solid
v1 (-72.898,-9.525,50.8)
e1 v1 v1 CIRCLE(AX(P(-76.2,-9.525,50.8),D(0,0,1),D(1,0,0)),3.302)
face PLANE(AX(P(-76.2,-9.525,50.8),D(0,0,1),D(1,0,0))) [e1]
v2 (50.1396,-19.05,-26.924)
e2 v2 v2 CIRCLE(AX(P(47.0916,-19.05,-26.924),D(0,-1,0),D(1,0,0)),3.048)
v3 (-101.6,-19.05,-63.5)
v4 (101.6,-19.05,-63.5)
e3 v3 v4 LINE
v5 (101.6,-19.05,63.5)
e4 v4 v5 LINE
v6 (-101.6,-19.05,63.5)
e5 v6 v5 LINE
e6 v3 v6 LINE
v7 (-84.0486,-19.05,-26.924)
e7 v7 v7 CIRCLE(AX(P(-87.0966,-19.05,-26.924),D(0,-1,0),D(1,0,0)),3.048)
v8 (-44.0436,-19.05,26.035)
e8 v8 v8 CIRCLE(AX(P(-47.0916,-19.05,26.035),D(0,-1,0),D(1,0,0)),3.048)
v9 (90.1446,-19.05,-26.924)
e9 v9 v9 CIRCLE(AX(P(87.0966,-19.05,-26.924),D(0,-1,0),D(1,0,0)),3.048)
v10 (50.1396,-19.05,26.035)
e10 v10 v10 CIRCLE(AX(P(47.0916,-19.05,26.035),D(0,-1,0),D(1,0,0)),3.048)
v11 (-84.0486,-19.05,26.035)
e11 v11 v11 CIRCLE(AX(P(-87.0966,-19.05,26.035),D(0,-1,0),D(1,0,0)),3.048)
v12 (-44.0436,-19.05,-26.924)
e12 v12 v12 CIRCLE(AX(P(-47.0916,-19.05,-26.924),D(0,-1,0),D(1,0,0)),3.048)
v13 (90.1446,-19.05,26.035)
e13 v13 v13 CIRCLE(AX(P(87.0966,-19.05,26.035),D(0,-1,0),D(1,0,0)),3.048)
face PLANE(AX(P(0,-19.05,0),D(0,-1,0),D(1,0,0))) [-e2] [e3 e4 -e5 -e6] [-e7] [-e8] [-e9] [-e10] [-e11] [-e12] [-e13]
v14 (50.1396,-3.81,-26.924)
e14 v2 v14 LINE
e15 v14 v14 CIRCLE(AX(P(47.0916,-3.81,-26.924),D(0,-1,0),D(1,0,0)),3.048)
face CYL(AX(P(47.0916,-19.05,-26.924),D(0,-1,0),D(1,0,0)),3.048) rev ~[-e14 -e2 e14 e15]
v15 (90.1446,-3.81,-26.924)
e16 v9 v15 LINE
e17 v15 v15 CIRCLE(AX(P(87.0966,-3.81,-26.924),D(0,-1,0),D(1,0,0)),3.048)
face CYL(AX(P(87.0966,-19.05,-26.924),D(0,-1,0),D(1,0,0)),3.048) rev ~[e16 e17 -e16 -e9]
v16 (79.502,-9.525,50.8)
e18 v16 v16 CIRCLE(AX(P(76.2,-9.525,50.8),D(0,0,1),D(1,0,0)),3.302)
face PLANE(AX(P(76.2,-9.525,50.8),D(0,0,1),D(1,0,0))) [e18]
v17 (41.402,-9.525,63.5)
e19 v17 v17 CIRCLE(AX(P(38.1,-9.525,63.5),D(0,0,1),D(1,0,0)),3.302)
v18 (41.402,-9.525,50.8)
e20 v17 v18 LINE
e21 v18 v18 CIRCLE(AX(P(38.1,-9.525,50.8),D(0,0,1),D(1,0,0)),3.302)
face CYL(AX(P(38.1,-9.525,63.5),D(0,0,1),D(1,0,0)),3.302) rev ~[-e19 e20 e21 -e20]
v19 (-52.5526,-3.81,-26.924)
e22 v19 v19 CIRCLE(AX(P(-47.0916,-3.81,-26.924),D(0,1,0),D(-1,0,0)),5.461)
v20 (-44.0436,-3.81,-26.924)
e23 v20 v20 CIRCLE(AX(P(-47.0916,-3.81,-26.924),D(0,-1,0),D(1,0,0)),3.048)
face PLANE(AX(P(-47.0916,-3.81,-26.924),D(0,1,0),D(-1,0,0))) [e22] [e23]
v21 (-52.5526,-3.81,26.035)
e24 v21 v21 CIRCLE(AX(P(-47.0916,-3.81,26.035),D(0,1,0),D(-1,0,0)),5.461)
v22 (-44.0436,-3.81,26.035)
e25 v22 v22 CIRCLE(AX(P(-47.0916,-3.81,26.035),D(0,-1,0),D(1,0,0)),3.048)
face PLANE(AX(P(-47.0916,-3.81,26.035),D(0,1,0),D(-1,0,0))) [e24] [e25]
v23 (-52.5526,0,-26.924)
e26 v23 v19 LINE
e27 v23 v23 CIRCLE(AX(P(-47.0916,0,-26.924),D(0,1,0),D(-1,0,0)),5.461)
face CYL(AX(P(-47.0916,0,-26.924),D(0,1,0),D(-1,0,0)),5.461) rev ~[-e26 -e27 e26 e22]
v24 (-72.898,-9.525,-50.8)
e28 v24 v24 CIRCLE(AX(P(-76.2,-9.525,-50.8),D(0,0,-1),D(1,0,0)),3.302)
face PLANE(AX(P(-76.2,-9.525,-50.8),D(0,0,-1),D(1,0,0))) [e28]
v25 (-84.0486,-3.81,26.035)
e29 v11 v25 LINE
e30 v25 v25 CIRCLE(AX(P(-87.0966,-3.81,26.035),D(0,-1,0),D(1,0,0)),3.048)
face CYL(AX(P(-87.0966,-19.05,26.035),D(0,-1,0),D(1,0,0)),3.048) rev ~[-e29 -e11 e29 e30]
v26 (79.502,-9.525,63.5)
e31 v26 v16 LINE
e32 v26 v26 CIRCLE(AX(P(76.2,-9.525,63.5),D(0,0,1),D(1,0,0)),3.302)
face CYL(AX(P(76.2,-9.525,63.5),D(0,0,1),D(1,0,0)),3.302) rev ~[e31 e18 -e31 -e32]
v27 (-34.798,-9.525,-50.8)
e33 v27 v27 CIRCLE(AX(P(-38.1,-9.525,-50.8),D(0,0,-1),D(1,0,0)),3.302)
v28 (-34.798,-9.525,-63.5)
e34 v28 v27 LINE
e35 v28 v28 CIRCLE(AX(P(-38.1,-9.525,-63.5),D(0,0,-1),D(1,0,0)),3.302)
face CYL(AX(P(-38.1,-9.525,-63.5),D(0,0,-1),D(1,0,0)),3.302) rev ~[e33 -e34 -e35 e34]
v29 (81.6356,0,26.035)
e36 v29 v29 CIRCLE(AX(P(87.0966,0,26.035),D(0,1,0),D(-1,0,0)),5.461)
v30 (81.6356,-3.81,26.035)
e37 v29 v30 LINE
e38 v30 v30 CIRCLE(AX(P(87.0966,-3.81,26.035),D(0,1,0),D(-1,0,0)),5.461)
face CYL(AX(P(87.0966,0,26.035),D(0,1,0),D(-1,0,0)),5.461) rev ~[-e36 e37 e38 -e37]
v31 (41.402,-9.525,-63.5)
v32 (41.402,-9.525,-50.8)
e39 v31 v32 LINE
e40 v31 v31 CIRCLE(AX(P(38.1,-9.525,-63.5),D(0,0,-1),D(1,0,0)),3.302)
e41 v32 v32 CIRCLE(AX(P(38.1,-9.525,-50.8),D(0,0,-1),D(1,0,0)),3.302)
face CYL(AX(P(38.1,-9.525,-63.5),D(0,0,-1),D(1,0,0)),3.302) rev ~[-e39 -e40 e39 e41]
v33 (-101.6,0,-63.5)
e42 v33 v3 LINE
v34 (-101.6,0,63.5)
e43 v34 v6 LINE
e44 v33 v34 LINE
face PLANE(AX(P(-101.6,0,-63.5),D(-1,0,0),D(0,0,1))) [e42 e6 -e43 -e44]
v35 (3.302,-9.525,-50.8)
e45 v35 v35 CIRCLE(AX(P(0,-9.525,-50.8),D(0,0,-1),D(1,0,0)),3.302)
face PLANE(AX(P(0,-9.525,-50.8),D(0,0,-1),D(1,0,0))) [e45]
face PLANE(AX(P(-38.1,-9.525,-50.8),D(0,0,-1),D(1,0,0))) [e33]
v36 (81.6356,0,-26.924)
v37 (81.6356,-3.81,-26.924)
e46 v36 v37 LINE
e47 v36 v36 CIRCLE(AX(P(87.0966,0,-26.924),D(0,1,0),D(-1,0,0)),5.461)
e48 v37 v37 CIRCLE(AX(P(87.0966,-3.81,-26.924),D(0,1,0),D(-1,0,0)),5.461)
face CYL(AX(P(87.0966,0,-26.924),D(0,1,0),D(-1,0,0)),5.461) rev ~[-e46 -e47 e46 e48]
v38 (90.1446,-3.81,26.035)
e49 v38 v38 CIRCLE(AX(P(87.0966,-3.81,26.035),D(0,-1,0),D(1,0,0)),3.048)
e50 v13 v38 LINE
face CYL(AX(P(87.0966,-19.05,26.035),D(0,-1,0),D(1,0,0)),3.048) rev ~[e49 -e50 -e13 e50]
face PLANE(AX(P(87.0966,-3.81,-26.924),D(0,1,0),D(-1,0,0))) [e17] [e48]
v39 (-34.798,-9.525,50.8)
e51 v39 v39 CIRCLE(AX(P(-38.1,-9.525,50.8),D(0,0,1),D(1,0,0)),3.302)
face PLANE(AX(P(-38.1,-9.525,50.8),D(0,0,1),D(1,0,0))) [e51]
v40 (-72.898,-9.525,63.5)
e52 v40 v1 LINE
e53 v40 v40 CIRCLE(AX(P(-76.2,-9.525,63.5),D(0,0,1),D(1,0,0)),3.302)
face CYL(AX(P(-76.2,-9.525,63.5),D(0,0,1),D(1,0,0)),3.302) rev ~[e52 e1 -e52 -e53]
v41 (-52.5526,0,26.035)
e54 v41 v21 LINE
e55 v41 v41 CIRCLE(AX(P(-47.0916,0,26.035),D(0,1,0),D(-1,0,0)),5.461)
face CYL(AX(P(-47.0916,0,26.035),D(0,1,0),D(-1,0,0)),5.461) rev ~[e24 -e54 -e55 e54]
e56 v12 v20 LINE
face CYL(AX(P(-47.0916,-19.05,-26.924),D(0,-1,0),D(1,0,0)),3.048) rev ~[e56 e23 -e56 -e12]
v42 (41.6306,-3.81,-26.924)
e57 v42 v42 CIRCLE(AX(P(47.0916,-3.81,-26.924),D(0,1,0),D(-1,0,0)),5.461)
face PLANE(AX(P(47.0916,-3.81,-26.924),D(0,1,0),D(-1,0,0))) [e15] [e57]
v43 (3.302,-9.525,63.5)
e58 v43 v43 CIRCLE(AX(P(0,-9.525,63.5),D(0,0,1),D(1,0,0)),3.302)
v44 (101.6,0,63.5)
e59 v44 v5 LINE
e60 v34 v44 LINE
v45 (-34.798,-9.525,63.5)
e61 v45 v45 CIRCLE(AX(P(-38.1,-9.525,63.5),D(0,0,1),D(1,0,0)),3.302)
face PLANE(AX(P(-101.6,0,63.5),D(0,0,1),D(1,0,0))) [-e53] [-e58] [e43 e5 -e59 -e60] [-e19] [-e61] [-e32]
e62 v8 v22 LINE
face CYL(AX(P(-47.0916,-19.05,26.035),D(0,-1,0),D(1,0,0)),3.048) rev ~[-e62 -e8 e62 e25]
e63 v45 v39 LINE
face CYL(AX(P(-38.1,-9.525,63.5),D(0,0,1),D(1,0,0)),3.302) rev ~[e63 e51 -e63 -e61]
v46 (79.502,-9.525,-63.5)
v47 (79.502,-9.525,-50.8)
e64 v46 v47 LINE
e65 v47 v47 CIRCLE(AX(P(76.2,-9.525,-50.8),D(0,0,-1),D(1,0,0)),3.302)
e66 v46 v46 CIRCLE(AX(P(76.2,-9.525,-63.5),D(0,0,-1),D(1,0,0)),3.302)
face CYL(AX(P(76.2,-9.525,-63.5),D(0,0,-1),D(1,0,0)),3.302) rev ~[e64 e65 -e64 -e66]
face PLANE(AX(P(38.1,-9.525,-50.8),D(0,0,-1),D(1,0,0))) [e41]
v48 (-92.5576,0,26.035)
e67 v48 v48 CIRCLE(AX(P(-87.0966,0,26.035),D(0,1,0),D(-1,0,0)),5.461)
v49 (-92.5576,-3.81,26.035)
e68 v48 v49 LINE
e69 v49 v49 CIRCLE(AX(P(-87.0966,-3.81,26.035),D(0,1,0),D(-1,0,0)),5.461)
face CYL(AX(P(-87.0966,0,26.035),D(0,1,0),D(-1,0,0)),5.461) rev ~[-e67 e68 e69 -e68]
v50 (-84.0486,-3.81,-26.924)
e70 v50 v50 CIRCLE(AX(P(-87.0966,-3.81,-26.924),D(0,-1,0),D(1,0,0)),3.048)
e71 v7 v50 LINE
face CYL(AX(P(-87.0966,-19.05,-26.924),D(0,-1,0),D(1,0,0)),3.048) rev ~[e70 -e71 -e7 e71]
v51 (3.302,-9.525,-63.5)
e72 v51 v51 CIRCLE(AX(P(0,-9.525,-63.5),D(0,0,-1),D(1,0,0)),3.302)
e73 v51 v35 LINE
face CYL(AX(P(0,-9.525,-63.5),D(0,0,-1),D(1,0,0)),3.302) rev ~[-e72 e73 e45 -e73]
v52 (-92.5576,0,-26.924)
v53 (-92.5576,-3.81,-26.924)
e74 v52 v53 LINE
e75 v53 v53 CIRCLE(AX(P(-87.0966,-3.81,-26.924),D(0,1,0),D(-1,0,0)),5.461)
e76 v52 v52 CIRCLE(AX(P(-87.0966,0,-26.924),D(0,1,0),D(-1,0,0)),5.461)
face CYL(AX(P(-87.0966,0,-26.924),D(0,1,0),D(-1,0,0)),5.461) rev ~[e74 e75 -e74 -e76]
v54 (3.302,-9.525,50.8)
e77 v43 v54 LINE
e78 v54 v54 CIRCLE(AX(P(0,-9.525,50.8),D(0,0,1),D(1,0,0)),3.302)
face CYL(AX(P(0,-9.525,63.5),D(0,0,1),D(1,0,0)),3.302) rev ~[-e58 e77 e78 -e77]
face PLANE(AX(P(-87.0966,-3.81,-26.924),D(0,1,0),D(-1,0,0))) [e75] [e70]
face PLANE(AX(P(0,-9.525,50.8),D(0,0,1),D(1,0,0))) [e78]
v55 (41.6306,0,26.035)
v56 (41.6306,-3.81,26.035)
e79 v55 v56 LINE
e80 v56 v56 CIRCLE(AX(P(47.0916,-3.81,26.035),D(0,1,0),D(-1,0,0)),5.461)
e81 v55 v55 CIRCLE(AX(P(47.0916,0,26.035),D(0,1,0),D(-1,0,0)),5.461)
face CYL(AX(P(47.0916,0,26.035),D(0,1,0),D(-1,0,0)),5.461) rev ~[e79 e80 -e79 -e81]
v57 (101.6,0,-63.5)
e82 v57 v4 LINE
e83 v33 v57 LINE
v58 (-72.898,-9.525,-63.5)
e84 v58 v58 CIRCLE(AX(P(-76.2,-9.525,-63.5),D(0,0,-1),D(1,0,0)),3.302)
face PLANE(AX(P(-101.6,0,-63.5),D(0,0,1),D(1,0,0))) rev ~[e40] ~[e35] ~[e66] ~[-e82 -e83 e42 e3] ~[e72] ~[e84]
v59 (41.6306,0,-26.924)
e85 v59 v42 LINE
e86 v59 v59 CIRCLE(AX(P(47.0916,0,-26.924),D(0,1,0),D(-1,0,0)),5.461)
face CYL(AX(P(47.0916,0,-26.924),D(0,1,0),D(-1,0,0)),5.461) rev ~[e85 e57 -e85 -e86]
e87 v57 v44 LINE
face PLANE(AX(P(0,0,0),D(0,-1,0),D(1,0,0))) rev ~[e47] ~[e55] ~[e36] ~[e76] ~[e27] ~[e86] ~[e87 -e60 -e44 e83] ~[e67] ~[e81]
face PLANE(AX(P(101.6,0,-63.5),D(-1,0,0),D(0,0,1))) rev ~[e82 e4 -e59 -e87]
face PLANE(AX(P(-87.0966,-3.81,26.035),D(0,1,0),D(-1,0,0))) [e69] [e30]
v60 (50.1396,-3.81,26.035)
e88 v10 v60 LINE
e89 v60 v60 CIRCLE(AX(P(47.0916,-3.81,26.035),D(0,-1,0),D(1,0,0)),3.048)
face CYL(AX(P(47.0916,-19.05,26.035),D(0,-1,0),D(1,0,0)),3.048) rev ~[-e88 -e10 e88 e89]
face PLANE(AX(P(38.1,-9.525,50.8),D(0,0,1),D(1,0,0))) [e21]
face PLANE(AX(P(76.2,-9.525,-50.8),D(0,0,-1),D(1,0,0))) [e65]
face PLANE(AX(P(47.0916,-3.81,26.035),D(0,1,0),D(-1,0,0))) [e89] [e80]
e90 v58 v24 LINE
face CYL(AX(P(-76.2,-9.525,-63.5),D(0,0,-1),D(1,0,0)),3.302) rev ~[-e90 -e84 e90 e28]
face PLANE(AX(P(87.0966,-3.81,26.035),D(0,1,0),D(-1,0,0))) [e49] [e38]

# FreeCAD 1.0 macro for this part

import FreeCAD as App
import Part
import Sketcher
from FreeCAD import Vector
Q = App.Units.Quantity


def add_polygon(sketch, points):
    """Adds a closed chain of lines whose ends are joined by coincident constraints."""
    first, n = sketch.GeometryCount, len(points)
    for a, b in zip(points, points[1:] + points[:1]):
        sketch.addGeometry(Part.LineSegment(App.Vector(*a, 0), App.Vector(*b, 0)), False)
    for i in range(n):
        sketch.addConstraint(Sketcher.Constraint("Coincident", first + i, 2, first + (i + 1) % n, 1))

doc = App.newDocument("Part")
body = doc.addObject("PartDesign::Body", "Body")

# Sketch on XZ plane
sketch1 = doc.addObject("Sketcher::SketchObject", "Sketch")
body.addObject(sketch1)
sketch1.AttachmentSupport = (doc.XZ_Plane, [""])
sketch1.MapMode = "FlatFace"
add_polygon(sketch1, [(-101.6, 63.5), (-101.6, -63.5), (101.6, -63.5), (101.6, 63.5)])  # lines 0-3
sketch1.addConstraint([
    Sketcher.Constraint("Vertical", 0),
    Sketcher.Constraint("Horizontal", 1),
    Sketcher.Constraint("Vertical", 2),
    Sketcher.Constraint("Horizontal", 3),
    Sketcher.Constraint("Symmetric", 0, 2, 2, 2, -1, 1),
    Sketcher.Constraint("DistanceX", 1, 1, 1, 2, Q("8 in")),
    Sketcher.Constraint("DistanceY", 0, 2, 0, 1, Q("5 in")),
])
pad1 = doc.addObject("PartDesign::Pad", "Pad")
body.addObject(pad1)
pad1.Profile = sketch1
pad1.Length = Q("0.75 in")

# Sketch on XZ plane
sketch2 = doc.addObject("Sketcher::SketchObject", "Sketch001")
body.addObject(sketch2)
sketch2.AttachmentSupport = (doc.XZ_Plane, [""])
sketch2.MapMode = "FlatFace"
sketch2.AttachmentOffset = App.Placement(Vector(0, 0, 0.75 * 25.4), App.Rotation())
sketch2.addGeometry([
    Part.Circle(Vector(-87.0966, 26.035, 0), Vector(0, 0, 1), 3.048),  # 0
    Part.Circle(Vector(-47.0916, 26.035, 0), Vector(0, 0, 1), 3.048),  # 1
    Part.Circle(Vector(-87.0966, -26.924, 0), Vector(0, 0, 1), 3.048),  # 2
    Part.Circle(Vector(-47.0916, -26.924, 0), Vector(0, 0, 1), 3.048),  # 3
    Part.Circle(Vector(47.0916, -26.924, 0), Vector(0, 0, 1), 3.048),  # 4
    Part.Circle(Vector(47.0916, 26.035, 0), Vector(0, 0, 1), 3.048),  # 5
    Part.Circle(Vector(87.0966, 26.035, 0), Vector(0, 0, 1), 3.048),  # 6
    Part.Circle(Vector(87.0966, -26.924, 0), Vector(0, 0, 1), 3.048),  # 7
], False)
sketch2.addConstraint([
    Sketcher.Constraint("Equal", 0, 1),
    Sketcher.Constraint("Equal", 1, 2),
    Sketcher.Constraint("Equal", 2, 3),
    Sketcher.Constraint("Equal", 3, 4),
    Sketcher.Constraint("Equal", 4, 5),
    Sketcher.Constraint("Equal", 5, 6),
    Sketcher.Constraint("Equal", 6, 7),
    Sketcher.Constraint("Symmetric", 3, 3, 4, 3, -2),
    Sketcher.Constraint("Symmetric", 1, 3, 5, 3, -2),
    Sketcher.Constraint("Symmetric", 0, 3, 6, 3, -2),
    Sketcher.Constraint("Symmetric", 2, 3, 7, 3, -2),
    Sketcher.Constraint("Horizontal", 0, 3, 1, 3),
    Sketcher.Constraint("Horizontal", 2, 3, 3, 3),
    Sketcher.Constraint("Vertical", 0, 3, 2, 3),
    Sketcher.Constraint("Vertical", 1, 3, 3, 3),
    Sketcher.Constraint("Diameter", 0, Q("0.24 in")),
    Sketcher.Constraint("DistanceY", 2, 3, -1, 1, Q("1.06 in")),
    Sketcher.Constraint("DistanceX", 0, 3, -1, 1, Q("3.429 in")),
    Sketcher.Constraint("DistanceY", -1, 1, 0, 3, Q("1.025 in")),
    Sketcher.Constraint("DistanceX", 1, 3, -1, 1, Q("1.854 in")),
])
pocket1 = doc.addObject("PartDesign::Pocket", "Pocket")
body.addObject(pocket1)
pocket1.Profile = sketch2
pocket1.Type = "ThroughAll"

# Sketch on XY plane
sketch3 = doc.addObject("Sketcher::SketchObject", "Sketch002")
body.addObject(sketch3)
sketch3.AttachmentSupport = (doc.XY_Plane, [""])
sketch3.MapMode = "FlatFace"
sketch3.AttachmentOffset = App.Placement(Vector(0, 0, 2.5 * 25.4), App.Rotation())
sketch3.addGeometry([
    Part.Circle(Vector(-76.2, -9.525, 0), Vector(0, 0, 1), 3.302),  # 0
    Part.Circle(Vector(-38.1, -9.525, 0), Vector(0, 0, 1), 3.302),  # 1
    Part.Circle(Vector(0, -9.525, 0), Vector(0, 0, 1), 3.302),  # 2
    Part.Circle(Vector(38.1, -9.525, 0), Vector(0, 0, 1), 3.302),  # 3
    Part.Circle(Vector(76.2, -9.525, 0), Vector(0, 0, 1), 3.302),  # 4
], False)
sketch3.addConstraint([
    Sketcher.Constraint("Equal", 0, 1),
    Sketcher.Constraint("Equal", 1, 2),
    Sketcher.Constraint("Equal", 2, 3),
    Sketcher.Constraint("Equal", 3, 4),
    Sketcher.Constraint("Symmetric", 1, 3, 3, 3, -2),
    Sketcher.Constraint("Symmetric", 0, 3, 4, 3, -2),
    Sketcher.Constraint("PointOnObject", 2, 3, -2),
    Sketcher.Constraint("Horizontal", 0, 3, 1, 3),
    Sketcher.Constraint("Horizontal", 1, 3, 2, 3),
    Sketcher.Constraint("Diameter", 0, Q("0.26 in")),
    Sketcher.Constraint("DistanceX", 0, 3, -1, 1, Q("3 in")),
    Sketcher.Constraint("DistanceX", 1, 3, 3, 3, Q("3 in")),
    Sketcher.Constraint("DistanceY", 0, 3, -1, 1, Q("0.375 in")),
])
pocket2 = doc.addObject("PartDesign::Pocket", "Pocket001")
body.addObject(pocket2)
pocket2.Profile = sketch3
pocket2.Length = Q("0.5 in")

# Sketch on XY plane
sketch4 = doc.addObject("Sketcher::SketchObject", "Sketch003")
body.addObject(sketch4)
sketch4.AttachmentSupport = (doc.XY_Plane, [""])
sketch4.MapMode = "FlatFace"
sketch4.AttachmentOffset = App.Placement(Vector(0, 0, -2.5 * 25.4), App.Rotation())
sketch4.addGeometry([
    Part.Circle(Vector(-76.2, -9.525, 0), Vector(0, 0, 1), 3.302),  # 0
    Part.Circle(Vector(-38.1, -9.525, 0), Vector(0, 0, 1), 3.302),  # 1
    Part.Circle(Vector(0, -9.525, 0), Vector(0, 0, 1), 3.302),  # 2
    Part.Circle(Vector(38.1, -9.525, 0), Vector(0, 0, 1), 3.302),  # 3
    Part.Circle(Vector(76.2, -9.525, 0), Vector(0, 0, 1), 3.302),  # 4
], False)
sketch4.addConstraint([
    Sketcher.Constraint("Equal", 0, 1),
    Sketcher.Constraint("Equal", 1, 2),
    Sketcher.Constraint("Equal", 2, 3),
    Sketcher.Constraint("Equal", 3, 4),
    Sketcher.Constraint("Symmetric", 1, 3, 3, 3, -2),
    Sketcher.Constraint("Symmetric", 0, 3, 4, 3, -2),
    Sketcher.Constraint("PointOnObject", 2, 3, -2),
    Sketcher.Constraint("Horizontal", 0, 3, 1, 3),
    Sketcher.Constraint("Horizontal", 1, 3, 2, 3),
    Sketcher.Constraint("Diameter", 0, Q("0.26 in")),
    Sketcher.Constraint("DistanceX", 0, 3, -1, 1, Q("3 in")),
    Sketcher.Constraint("DistanceX", 1, 3, 3, 3, Q("3 in")),
    Sketcher.Constraint("DistanceY", 0, 3, -1, 1, Q("0.375 in")),
])
pocket3 = doc.addObject("PartDesign::Pocket", "Pocket002")
body.addObject(pocket3)
pocket3.Profile = sketch4
pocket3.Length = Q("0.5 in")
pocket3.Reversed = True

# Sketch on XZ plane
sketch5 = doc.addObject("Sketcher::SketchObject", "Sketch004")
body.addObject(sketch5)
sketch5.AttachmentSupport = (doc.XZ_Plane, [""])
sketch5.MapMode = "FlatFace"
sketch5.addGeometry([
    Part.Circle(Vector(47.0916, 26.035, 0), Vector(0, 0, 1), 5.461),  # 0
    Part.Circle(Vector(87.0966, 26.035, 0), Vector(0, 0, 1), 5.461),  # 1
    Part.Circle(Vector(87.0966, -26.924, 0), Vector(0, 0, 1), 5.461),  # 2
    Part.Circle(Vector(47.0916, -26.924, 0), Vector(0, 0, 1), 5.461),  # 3
    Part.Circle(Vector(-47.0916, -26.924, 0), Vector(0, 0, 1), 5.461),  # 4
    Part.Circle(Vector(-87.0966, -26.924, 0), Vector(0, 0, 1), 5.461),  # 5
    Part.Circle(Vector(-87.0966, 26.035, 0), Vector(0, 0, 1), 5.461),  # 6
    Part.Circle(Vector(-47.0916, 26.035, 0), Vector(0, 0, 1), 5.461),  # 7
], False)
sketch5.addConstraint([
    Sketcher.Constraint("Equal", 0, 1),
    Sketcher.Constraint("Equal", 1, 2),
    Sketcher.Constraint("Equal", 2, 3),
    Sketcher.Constraint("Equal", 3, 4),
    Sketcher.Constraint("Equal", 4, 5),
    Sketcher.Constraint("Equal", 5, 6),
    Sketcher.Constraint("Equal", 6, 7),
    Sketcher.Constraint("Symmetric", 3, 3, 4, 3, -2),
    Sketcher.Constraint("Symmetric", 2, 3, 5, 3, -2),
    Sketcher.Constraint("Symmetric", 1, 3, 6, 3, -2),
    Sketcher.Constraint("Symmetric", 0, 3, 7, 3, -2),
    Sketcher.Constraint("Horizontal", 0, 3, 1, 3),
    Sketcher.Constraint("Horizontal", 2, 3, 3, 3),
    Sketcher.Constraint("Vertical", 1, 3, 2, 3),
    Sketcher.Constraint("Vertical", 0, 3, 3, 3),
    Sketcher.Constraint("Diameter", 0, Q("0.43 in")),
    Sketcher.Constraint("DistanceY", 2, 3, -1, 1, Q("1.06 in")),
    Sketcher.Constraint("DistanceX", -1, 1, 0, 3, Q("1.854 in")),
    Sketcher.Constraint("DistanceY", -1, 1, 0, 3, Q("1.025 in")),
    Sketcher.Constraint("DistanceX", -1, 1, 1, 3, Q("3.429 in")),
])
pocket4 = doc.addObject("PartDesign::Pocket", "Pocket003")
body.addObject(pocket4)
pocket4.Profile = sketch5
pocket4.Length = Q("0.15 in")
pocket4.Reversed = True

doc.recompute()
